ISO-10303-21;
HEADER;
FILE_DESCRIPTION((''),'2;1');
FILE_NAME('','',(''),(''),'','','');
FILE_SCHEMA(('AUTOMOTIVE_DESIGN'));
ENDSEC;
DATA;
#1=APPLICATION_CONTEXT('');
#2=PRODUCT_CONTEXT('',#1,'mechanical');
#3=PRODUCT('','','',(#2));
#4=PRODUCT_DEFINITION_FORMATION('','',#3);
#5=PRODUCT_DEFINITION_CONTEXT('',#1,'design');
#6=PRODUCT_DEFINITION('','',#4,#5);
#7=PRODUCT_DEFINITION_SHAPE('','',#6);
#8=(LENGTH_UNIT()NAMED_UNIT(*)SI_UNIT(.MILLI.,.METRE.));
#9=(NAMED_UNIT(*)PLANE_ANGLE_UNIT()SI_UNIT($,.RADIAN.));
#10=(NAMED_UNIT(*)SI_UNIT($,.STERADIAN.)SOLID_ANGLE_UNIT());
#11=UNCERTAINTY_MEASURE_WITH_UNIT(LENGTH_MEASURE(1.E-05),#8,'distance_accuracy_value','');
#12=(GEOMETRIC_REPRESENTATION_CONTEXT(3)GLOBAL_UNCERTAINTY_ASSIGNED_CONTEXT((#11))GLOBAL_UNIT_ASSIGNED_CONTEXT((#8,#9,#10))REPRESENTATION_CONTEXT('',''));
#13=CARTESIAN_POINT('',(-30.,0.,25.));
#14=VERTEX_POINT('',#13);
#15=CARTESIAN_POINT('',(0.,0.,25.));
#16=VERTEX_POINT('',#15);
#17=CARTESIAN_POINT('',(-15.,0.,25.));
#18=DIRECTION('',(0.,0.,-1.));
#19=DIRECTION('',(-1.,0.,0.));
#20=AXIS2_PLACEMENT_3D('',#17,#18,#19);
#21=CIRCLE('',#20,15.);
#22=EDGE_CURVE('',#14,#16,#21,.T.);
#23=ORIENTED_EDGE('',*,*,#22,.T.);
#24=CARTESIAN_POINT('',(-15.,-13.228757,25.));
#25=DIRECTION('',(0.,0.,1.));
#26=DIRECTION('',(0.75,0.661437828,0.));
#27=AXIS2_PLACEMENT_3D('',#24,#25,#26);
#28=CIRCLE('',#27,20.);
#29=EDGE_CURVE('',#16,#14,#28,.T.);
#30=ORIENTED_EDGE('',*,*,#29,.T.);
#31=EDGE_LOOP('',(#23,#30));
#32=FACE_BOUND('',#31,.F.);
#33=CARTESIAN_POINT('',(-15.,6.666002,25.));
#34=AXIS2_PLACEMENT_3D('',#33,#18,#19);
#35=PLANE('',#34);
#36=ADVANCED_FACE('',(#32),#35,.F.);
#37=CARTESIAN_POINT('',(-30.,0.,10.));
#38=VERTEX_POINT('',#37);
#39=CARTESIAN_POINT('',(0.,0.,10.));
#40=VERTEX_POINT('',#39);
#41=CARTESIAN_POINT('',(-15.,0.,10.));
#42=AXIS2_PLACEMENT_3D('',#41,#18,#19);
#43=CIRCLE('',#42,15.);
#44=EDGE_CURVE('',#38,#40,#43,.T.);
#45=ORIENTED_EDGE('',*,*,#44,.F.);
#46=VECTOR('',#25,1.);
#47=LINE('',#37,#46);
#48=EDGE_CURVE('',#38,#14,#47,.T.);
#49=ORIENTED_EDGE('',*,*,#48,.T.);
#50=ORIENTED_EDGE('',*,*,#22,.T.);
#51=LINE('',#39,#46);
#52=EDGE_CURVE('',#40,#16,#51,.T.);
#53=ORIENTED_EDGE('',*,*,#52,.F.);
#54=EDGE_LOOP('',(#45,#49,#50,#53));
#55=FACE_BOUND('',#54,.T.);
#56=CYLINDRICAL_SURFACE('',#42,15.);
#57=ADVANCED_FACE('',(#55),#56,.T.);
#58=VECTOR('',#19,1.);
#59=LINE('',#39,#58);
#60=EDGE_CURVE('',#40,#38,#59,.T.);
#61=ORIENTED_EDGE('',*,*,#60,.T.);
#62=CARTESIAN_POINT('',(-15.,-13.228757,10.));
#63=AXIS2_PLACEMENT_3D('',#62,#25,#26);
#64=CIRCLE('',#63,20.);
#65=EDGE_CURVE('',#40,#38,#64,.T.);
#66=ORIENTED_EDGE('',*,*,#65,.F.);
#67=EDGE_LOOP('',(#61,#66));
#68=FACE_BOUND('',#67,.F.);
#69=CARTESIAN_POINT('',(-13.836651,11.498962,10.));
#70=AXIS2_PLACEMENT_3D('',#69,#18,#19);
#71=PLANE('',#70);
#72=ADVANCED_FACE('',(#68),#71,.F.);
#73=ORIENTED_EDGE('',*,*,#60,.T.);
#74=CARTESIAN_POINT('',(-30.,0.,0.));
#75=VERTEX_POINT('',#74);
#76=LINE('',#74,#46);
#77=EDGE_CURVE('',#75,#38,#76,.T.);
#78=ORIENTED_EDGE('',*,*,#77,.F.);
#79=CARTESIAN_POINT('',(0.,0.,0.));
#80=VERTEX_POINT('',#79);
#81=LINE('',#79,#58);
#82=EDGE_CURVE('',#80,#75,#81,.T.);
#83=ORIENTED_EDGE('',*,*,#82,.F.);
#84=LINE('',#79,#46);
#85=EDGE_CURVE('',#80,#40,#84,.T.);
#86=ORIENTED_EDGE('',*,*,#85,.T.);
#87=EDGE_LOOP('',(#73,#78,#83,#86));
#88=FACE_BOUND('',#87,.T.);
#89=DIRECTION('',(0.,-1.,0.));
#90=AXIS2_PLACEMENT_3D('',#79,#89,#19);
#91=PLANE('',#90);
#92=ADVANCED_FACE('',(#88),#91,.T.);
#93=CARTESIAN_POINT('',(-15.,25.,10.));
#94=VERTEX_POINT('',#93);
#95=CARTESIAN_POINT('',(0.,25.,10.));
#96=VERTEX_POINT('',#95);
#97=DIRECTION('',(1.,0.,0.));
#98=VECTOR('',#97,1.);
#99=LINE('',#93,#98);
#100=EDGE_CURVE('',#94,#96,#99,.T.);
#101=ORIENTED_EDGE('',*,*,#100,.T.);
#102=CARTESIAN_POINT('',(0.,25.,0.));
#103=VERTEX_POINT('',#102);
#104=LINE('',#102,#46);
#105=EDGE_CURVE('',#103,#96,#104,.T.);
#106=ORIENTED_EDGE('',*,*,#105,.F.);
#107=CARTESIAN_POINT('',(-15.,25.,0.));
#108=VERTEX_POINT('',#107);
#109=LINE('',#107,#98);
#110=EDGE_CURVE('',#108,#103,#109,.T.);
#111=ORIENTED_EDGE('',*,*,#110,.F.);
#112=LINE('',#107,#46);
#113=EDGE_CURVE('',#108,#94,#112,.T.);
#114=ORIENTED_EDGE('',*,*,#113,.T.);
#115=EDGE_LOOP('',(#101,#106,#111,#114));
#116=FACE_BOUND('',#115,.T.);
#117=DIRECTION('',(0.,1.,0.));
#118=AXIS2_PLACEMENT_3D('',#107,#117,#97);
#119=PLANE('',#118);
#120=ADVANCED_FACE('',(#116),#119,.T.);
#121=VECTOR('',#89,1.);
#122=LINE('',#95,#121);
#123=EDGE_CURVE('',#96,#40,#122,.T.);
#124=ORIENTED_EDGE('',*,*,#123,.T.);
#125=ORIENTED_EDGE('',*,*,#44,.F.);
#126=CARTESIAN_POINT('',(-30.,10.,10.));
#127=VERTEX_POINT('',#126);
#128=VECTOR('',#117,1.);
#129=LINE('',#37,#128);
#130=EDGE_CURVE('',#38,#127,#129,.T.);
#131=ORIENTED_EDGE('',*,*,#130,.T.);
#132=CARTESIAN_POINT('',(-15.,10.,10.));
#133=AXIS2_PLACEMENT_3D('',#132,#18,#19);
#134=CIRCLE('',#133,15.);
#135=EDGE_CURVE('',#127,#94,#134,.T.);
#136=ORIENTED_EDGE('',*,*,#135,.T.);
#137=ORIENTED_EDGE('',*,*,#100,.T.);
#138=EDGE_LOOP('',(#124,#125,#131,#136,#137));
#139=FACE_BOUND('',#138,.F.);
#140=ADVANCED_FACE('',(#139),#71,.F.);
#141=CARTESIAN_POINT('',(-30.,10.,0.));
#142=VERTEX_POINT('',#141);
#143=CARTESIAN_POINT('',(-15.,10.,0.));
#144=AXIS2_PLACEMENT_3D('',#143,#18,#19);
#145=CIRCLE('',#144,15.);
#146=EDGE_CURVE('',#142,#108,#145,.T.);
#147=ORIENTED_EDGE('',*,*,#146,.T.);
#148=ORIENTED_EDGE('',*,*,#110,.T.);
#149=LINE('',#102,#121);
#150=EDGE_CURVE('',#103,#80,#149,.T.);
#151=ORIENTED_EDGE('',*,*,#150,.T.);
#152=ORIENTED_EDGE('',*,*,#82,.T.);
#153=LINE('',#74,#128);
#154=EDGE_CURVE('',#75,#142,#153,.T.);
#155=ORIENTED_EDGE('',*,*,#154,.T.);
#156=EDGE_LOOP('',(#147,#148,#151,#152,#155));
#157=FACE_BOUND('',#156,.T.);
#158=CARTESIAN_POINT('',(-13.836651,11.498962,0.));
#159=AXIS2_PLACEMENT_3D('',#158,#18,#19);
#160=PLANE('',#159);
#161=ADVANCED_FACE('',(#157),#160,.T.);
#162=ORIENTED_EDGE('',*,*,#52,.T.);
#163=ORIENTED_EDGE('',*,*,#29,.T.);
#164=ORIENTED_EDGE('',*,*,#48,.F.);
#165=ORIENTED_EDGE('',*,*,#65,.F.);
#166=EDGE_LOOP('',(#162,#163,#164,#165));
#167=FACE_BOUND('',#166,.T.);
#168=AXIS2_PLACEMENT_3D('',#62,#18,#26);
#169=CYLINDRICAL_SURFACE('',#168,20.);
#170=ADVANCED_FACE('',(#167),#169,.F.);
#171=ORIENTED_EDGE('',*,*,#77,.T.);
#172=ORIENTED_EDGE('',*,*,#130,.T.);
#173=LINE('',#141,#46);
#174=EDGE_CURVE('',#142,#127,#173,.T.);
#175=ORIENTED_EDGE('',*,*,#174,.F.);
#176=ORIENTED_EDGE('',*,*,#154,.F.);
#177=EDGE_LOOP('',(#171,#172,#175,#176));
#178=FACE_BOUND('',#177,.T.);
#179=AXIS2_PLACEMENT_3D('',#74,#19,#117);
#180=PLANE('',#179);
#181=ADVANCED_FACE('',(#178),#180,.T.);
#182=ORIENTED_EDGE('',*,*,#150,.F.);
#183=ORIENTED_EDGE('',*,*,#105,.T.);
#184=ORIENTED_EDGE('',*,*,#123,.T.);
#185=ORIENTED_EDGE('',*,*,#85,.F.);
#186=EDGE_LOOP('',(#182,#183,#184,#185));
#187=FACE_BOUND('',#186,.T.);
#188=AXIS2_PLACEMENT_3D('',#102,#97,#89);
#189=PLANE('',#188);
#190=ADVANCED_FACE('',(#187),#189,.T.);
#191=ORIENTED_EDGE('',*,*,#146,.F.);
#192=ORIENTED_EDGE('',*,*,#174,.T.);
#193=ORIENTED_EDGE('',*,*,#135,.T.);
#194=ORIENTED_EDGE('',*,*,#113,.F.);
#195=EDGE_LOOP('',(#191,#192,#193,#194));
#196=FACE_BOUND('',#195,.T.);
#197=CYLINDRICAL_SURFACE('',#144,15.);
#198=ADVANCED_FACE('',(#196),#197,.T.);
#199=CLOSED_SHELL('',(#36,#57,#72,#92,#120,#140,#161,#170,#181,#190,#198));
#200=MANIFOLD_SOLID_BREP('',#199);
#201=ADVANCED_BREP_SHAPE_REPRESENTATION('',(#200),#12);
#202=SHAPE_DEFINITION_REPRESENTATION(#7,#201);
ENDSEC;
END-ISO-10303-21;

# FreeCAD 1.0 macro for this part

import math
import FreeCAD as App
import Part
import Sketcher
Q = App.Units.Quantity

doc = App.newDocument("Part")
body = doc.addObject("PartDesign::Body", "Body")

# Sketch on XY plane
sketch1 = body.newObject("Sketcher::SketchObject", "Sketch")
sketch1.AttachmentSupport = (doc.getObject("XY_Plane"), [""])
sketch1.MapMode = "FlatFace"
sketch1.addGeometry(Part.LineSegment(App.Vector(0, 25, 0), App.Vector(-15, 25, 0)), False)
sketch1.addGeometry(Part.ArcOfCircle(Part.Circle(App.Vector(-15, 10, 0), App.Vector(0, 0, 1), 15), math.radians(90), math.radians(180)), False)
sketch1.addGeometry(Part.LineSegment(App.Vector(-30, 10, 0), App.Vector(-30, 0, 0)), False)
sketch1.addGeometry(Part.LineSegment(App.Vector(-30, 0, 0), App.Vector(0, 0, 0)), False)
sketch1.addGeometry(Part.LineSegment(App.Vector(0, 0, 0), App.Vector(0, 25, 0)), False)
sketch1.addConstraint(Sketcher.Constraint("Tangent", 0, 2, 1, 1))
sketch1.addConstraint(Sketcher.Constraint("Tangent", 1, 2, 2, 1))
sketch1.addConstraint(Sketcher.Constraint("Coincident", 2, 2, 3, 1))
sketch1.addConstraint(Sketcher.Constraint("Coincident", 3, 2, 4, 1))
sketch1.addConstraint(Sketcher.Constraint("Coincident", 4, 2, 0, 1))
sketch1.addConstraint(Sketcher.Constraint("Horizontal", 0))
sketch1.addConstraint(Sketcher.Constraint("Vertical", 2))
sketch1.addConstraint(Sketcher.Constraint("Horizontal", 3))
sketch1.addConstraint(Sketcher.Constraint("Vertical", 4))
sketch1.addConstraint(Sketcher.Constraint("Coincident", 3, 2, -1, 1))
sketch1.addConstraint(Sketcher.Constraint("Radius", 1, Q("15 mm")))
sketch1.addConstraint(Sketcher.Constraint("DistanceX", 0, 2, 0, 1, Q("15 mm")))
sketch1.addConstraint(Sketcher.Constraint("DistanceY", 2, 2, 2, 1, Q("10 mm")))
pad1 = body.newObject("PartDesign::Pad", "Pad")
pad1.Profile = sketch1
pad1.Length = 10

# Sketch on XY plane
sketch2 = body.newObject("Sketcher::SketchObject", "Sketch001")
sketch2.AttachmentSupport = (doc.getObject("XY_Plane"), [""])
sketch2.MapMode = "FlatFace"
sketch2.AttachmentOffset = App.Placement(App.Vector(0, 0, 10), App.Rotation())
sketch2.addGeometry(Part.ArcOfCircle(Part.Circle(App.Vector(-15, 0, 0), App.Vector(0, 0, 1), 15), math.radians(0), math.radians(180)), False)
sketch2.addGeometry(Part.ArcOfCircle(Part.Circle(App.Vector(-15, -13, 0), App.Vector(0, 0, 1), 20), math.radians(41), math.radians(139)), False)
sketch2.addConstraint(Sketcher.Constraint("Coincident", 0, 1, 1, 1))
sketch2.addConstraint(Sketcher.Constraint("Coincident", 1, 2, 0, 2))
sketch2.addConstraint(Sketcher.Constraint("Coincident", 0, 1, -1, 1))
sketch2.addConstraint(Sketcher.Constraint("PointOnObject", 0, 3, -1))
sketch2.addConstraint(Sketcher.Constraint("PointOnObject", 1, 2, -1))
sketch2.addConstraint(Sketcher.Constraint("Radius", 0, Q("15 mm")))
sketch2.addConstraint(Sketcher.Constraint("Radius", 1, Q("20 mm")))
pad2 = body.newObject("PartDesign::Pad", "Pad001")
pad2.Profile = sketch2
pad2.Length = 15

doc.recompute()
